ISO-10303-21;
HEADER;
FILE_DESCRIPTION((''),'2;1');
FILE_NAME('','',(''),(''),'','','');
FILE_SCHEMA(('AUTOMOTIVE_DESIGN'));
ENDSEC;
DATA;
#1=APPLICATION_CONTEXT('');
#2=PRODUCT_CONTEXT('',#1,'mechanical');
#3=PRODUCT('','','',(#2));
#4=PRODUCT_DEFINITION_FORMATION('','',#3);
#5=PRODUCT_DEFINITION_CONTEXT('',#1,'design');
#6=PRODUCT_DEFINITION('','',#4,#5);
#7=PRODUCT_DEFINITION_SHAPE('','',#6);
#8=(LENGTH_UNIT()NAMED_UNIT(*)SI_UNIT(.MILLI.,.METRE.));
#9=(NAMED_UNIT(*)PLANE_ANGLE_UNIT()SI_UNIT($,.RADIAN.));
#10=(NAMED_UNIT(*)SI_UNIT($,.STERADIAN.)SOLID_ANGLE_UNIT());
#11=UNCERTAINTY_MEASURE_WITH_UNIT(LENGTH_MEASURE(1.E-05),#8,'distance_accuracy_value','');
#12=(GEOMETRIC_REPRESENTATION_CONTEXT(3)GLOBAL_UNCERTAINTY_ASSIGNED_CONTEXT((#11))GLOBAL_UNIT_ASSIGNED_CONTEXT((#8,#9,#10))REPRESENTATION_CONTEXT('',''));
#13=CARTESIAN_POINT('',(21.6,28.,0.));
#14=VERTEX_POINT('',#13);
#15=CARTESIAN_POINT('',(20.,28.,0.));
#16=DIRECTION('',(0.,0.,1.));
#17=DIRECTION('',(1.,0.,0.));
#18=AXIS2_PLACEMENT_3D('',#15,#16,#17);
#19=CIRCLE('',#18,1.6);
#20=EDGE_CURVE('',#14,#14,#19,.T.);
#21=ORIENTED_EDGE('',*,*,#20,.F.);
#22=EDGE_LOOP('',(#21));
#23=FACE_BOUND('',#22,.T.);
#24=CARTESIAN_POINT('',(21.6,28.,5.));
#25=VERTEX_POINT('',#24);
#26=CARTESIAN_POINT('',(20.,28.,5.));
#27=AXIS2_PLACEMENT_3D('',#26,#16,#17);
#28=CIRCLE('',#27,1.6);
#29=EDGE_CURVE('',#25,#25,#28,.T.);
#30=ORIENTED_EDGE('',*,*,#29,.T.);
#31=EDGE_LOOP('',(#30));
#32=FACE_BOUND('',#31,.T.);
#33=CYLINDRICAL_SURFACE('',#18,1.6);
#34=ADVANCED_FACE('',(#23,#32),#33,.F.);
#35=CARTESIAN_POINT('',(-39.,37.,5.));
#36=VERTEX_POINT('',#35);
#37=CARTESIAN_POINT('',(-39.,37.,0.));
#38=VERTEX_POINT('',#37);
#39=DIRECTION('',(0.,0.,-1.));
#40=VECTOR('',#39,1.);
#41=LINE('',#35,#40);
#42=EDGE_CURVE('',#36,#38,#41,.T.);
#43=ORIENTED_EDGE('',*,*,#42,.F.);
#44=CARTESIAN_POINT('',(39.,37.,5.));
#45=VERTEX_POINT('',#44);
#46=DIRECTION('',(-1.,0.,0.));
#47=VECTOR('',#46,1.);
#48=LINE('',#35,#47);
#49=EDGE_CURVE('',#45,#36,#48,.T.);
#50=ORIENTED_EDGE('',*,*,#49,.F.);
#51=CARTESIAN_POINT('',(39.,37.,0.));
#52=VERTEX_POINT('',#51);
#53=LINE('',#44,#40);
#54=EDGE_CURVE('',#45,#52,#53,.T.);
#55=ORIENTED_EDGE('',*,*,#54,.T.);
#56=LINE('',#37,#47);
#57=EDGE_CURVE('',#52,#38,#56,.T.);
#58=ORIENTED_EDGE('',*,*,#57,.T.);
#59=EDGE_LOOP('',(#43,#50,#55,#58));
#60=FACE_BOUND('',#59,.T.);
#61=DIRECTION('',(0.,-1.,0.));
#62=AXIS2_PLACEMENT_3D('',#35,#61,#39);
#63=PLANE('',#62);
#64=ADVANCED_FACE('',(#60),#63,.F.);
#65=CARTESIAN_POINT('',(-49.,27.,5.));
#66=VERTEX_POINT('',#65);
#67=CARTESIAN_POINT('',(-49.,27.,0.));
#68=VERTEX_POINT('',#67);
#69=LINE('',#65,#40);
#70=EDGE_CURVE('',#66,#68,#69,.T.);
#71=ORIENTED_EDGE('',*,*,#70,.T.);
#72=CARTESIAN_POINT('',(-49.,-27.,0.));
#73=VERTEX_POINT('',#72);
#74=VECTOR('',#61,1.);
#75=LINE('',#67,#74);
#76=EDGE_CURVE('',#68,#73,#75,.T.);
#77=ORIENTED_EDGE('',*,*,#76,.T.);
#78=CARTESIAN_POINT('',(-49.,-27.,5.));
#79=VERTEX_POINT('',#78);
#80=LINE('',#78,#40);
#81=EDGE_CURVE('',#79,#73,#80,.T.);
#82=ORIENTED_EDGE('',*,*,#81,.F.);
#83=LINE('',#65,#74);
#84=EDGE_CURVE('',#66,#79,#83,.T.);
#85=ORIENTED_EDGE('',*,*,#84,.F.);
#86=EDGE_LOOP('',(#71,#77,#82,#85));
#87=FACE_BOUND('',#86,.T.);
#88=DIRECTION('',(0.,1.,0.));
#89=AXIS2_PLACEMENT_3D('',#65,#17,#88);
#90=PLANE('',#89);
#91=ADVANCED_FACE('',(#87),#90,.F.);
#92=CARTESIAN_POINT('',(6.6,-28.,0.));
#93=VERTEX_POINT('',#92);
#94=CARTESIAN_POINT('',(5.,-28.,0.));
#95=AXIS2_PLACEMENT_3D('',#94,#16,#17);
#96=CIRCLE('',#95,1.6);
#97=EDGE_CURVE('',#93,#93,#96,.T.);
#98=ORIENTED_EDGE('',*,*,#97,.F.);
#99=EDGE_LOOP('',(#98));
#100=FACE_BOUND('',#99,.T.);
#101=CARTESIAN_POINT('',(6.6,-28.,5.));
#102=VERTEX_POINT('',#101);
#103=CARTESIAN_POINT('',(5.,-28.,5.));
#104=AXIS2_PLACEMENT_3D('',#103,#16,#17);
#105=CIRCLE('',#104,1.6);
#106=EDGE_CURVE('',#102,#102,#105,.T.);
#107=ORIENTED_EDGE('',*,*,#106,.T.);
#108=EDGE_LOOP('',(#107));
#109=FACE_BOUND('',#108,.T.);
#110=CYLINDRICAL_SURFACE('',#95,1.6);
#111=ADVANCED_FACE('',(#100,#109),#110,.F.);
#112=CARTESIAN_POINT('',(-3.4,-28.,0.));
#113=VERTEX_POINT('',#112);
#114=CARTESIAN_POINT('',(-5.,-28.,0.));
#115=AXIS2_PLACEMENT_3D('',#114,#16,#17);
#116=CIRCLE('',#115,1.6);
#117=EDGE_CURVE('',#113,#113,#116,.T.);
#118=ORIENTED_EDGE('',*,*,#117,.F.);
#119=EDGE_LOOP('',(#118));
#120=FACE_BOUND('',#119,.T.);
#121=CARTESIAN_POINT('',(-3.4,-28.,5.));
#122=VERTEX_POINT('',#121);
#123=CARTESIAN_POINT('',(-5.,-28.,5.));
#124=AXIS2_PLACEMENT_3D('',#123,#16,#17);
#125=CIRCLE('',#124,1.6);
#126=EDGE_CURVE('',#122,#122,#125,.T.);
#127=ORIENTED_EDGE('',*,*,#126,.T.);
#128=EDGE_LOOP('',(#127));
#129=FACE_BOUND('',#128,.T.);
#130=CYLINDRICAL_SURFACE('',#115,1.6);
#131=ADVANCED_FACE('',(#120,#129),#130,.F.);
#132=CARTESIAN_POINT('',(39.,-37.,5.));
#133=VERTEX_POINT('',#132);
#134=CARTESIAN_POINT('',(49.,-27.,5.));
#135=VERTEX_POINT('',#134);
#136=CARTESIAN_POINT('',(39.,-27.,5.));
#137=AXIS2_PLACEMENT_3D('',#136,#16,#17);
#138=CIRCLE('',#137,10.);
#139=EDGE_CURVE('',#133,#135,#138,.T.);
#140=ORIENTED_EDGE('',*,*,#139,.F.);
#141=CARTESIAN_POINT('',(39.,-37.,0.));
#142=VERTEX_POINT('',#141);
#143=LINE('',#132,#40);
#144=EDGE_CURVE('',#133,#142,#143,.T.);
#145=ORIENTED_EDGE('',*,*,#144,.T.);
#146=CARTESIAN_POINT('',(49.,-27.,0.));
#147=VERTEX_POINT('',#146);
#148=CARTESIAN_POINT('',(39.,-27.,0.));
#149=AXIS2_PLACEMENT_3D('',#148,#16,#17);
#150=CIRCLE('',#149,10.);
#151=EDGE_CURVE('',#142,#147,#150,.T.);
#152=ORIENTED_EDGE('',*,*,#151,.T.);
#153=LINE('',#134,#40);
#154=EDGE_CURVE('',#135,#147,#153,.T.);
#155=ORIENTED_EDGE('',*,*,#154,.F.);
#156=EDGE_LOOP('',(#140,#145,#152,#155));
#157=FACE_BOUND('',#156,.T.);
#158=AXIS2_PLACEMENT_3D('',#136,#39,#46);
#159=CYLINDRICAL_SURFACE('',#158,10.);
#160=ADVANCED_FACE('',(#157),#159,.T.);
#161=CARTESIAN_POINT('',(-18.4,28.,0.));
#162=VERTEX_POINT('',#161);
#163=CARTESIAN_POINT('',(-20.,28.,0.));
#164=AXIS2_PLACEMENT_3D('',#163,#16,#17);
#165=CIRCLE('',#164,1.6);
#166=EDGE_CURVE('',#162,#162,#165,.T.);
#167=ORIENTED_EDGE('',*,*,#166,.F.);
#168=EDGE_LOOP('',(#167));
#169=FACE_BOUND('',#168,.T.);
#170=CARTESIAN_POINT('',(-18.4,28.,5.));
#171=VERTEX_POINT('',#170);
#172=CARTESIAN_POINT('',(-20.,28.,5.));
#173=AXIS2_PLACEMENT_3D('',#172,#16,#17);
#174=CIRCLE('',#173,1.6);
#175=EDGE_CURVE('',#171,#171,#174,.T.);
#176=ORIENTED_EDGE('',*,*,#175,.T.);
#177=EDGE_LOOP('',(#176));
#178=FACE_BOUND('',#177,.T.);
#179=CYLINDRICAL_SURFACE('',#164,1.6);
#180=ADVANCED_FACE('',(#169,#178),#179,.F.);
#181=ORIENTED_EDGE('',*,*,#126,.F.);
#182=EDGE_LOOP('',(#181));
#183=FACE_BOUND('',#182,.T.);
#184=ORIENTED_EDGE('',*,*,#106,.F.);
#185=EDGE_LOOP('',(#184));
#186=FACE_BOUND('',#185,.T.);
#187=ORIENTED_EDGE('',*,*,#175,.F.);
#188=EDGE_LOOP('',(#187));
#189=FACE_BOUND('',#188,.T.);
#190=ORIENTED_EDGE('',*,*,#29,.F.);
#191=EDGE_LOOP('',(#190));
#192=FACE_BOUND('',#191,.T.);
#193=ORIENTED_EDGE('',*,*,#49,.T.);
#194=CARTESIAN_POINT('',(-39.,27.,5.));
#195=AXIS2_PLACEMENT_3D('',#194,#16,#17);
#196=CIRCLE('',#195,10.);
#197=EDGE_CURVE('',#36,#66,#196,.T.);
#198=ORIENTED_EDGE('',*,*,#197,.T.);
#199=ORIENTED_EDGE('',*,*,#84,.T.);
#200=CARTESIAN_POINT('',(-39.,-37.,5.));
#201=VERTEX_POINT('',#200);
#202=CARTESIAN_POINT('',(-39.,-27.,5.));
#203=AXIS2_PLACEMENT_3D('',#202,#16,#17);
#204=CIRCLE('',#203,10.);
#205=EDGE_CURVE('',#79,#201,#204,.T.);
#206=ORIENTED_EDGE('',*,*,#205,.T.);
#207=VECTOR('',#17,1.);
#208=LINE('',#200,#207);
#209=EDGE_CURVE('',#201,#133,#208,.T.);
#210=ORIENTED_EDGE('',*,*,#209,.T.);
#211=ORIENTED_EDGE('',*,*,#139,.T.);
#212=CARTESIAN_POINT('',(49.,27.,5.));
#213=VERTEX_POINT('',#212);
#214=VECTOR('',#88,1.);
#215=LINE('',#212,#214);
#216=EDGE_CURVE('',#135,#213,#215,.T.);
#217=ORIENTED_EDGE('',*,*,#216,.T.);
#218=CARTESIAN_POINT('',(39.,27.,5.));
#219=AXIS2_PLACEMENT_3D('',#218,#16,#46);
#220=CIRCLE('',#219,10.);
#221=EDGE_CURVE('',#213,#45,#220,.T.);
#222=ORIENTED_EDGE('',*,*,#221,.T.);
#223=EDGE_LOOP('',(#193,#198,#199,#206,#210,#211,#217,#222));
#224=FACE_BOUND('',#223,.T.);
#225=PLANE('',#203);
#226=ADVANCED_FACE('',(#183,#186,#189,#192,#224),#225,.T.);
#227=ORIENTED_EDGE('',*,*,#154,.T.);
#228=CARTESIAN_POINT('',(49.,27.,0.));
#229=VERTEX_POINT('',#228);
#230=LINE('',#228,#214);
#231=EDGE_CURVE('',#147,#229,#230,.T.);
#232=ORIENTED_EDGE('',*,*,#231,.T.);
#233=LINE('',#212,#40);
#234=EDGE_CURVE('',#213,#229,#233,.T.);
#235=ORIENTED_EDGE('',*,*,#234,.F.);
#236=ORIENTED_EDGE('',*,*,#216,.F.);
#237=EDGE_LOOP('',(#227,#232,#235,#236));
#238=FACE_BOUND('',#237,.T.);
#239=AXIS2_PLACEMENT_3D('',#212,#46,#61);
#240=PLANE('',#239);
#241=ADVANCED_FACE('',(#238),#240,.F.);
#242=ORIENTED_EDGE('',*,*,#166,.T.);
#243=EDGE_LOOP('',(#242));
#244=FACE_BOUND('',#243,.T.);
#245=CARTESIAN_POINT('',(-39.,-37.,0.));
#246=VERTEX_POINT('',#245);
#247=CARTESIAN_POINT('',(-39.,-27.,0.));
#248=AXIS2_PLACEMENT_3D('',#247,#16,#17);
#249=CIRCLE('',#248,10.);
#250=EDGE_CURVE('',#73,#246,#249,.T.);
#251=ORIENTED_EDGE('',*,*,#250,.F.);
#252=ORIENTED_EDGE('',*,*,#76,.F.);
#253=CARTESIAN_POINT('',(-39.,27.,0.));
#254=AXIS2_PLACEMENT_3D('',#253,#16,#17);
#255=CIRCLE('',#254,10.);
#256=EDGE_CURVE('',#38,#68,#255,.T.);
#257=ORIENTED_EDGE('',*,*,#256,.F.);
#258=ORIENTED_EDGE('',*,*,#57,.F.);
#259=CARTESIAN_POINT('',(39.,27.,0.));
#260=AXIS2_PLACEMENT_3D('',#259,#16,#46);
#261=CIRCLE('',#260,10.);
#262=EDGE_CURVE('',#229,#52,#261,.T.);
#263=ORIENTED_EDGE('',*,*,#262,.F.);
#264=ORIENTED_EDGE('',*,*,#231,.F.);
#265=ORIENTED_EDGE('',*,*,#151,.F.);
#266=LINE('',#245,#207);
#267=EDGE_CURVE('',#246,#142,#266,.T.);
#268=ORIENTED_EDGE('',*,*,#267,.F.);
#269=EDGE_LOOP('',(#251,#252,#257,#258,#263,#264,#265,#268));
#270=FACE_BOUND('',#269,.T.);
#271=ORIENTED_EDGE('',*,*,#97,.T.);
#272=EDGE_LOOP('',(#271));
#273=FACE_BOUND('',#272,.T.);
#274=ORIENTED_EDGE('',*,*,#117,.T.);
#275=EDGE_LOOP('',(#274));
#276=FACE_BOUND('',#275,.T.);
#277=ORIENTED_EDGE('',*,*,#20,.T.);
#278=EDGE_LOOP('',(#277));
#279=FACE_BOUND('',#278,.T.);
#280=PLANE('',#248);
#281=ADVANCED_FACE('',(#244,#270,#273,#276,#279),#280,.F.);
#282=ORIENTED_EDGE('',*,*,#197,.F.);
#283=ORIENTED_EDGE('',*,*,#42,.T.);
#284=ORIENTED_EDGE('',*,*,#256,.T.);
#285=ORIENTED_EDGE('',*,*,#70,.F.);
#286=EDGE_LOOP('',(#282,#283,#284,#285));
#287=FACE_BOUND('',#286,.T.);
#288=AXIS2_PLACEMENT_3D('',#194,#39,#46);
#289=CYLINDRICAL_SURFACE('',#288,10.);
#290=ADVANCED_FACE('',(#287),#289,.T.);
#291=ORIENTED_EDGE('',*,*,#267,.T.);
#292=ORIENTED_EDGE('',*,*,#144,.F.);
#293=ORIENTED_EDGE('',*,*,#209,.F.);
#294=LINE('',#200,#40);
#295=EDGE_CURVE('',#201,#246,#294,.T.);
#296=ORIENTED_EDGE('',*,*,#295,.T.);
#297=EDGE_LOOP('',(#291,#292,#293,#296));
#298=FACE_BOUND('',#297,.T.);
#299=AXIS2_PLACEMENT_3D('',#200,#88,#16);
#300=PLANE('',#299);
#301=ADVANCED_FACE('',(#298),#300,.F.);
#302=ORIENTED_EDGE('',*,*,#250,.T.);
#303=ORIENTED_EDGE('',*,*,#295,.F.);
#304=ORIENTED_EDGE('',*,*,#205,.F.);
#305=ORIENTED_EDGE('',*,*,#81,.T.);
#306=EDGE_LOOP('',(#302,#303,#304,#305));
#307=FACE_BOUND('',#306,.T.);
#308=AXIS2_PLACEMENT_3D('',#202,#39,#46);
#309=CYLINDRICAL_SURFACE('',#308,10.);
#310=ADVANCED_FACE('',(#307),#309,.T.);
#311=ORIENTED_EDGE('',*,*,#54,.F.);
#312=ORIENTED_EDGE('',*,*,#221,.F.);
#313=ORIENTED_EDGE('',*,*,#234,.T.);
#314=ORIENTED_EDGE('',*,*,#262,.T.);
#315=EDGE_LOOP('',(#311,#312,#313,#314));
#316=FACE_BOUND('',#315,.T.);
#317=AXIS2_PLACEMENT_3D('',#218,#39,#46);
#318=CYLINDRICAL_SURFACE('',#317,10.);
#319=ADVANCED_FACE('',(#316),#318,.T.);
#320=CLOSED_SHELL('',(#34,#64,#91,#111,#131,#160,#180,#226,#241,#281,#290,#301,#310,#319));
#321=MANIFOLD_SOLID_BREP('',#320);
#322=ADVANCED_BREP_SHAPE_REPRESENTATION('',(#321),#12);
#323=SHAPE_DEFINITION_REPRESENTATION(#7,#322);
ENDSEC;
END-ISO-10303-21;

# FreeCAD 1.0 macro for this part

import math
import FreeCAD as App
import Part
import Sketcher

doc = App.newDocument("Part")
body = doc.addObject("PartDesign::Body", "Body")

# Sketch on XY plane
sketch1 = body.newObject("Sketcher::SketchObject", "Sketch")
sketch1.AttachmentSupport = (doc.getObject("XY_Plane"), [""])
sketch1.MapMode = "FlatFace"
sketch1.addGeometry(Part.LineSegment(App.Vector(39, 37, 0), App.Vector(-39, 37, 0)), False)
sketch1.addGeometry(Part.ArcOfCircle(Part.Circle(App.Vector(-39, 27, 0), App.Vector(0, 0, 1), 10), math.radians(90), math.radians(180)), False)
sketch1.addGeometry(Part.LineSegment(App.Vector(-49, 27, 0), App.Vector(-49, -27, 0)), False)
sketch1.addGeometry(Part.ArcOfCircle(Part.Circle(App.Vector(-39, -27, 0), App.Vector(0, 0, 1), 10), math.radians(180), math.radians(270)), False)
sketch1.addGeometry(Part.LineSegment(App.Vector(-39, -37, 0), App.Vector(39, -37, 0)), False)
sketch1.addGeometry(Part.ArcOfCircle(Part.Circle(App.Vector(39, -27, 0), App.Vector(0, 0, 1), 10), math.radians(-90), math.radians(0)), False)
sketch1.addGeometry(Part.LineSegment(App.Vector(49, -27, 0), App.Vector(49, 27, 0)), False)
sketch1.addGeometry(Part.ArcOfCircle(Part.Circle(App.Vector(39, 27, 0), App.Vector(0, 0, 1), 10), math.radians(0), math.radians(90)), False)
sketch1.addConstraint(Sketcher.Constraint("Tangent", 0, 2, 1, 1))
sketch1.addConstraint(Sketcher.Constraint("Tangent", 1, 2, 2, 1))
sketch1.addConstraint(Sketcher.Constraint("Tangent", 2, 2, 3, 1))
sketch1.addConstraint(Sketcher.Constraint("Tangent", 3, 2, 4, 1))
sketch1.addConstraint(Sketcher.Constraint("Tangent", 4, 2, 5, 1))
sketch1.addConstraint(Sketcher.Constraint("Tangent", 5, 2, 6, 1))
sketch1.addConstraint(Sketcher.Constraint("Tangent", 6, 2, 7, 1))
sketch1.addConstraint(Sketcher.Constraint("Tangent", 7, 2, 0, 1))
sketch1.addConstraint(Sketcher.Constraint("Horizontal", 0))
sketch1.addConstraint(Sketcher.Constraint("Vertical", 2))
sketch1.addConstraint(Sketcher.Constraint("Horizontal", 4))
sketch1.addConstraint(Sketcher.Constraint("Vertical", 6))
sketch1.addConstraint(Sketcher.Constraint("Equal", 1, 3))
sketch1.addConstraint(Sketcher.Constraint("Equal", 3, 5))
sketch1.addConstraint(Sketcher.Constraint("Equal", 5, 7))
sketch1.addConstraint(Sketcher.Constraint("Symmetric", 1, 3, 5, 3, -1, 1))
sketch1.addConstraint(Sketcher.Constraint("Radius", 1, 10.0))
sketch1.addConstraint(Sketcher.Constraint("DistanceX", 0, 2, 0, 1, 78.0))
sketch1.addConstraint(Sketcher.Constraint("DistanceY", 2, 2, 2, 1, 54.0))
pad1 = body.newObject("PartDesign::Pad", "Pad")
pad1.Profile = sketch1
pad1.Length = 5

# Sketch on XY plane
sketch2 = body.newObject("Sketcher::SketchObject", "Sketch001")
sketch2.AttachmentSupport = (doc.getObject("XY_Plane"), [""])
sketch2.MapMode = "FlatFace"
sketch2.AttachmentOffset = App.Placement(App.Vector(0, 0, 5), App.Rotation())
sketch2.addGeometry(Part.Circle(App.Vector(5, -28, 0), App.Vector(0, 0, 1), 1.6), False)
sketch2.addGeometry(Part.Circle(App.Vector(-5, -28, 0), App.Vector(0, 0, 1), 1.6), False)
sketch2.addGeometry(Part.Circle(App.Vector(-20, 28, 0), App.Vector(0, 0, 1), 1.6), False)
sketch2.addGeometry(Part.Circle(App.Vector(20, 28, 0), App.Vector(0, 0, 1), 1.6), False)
sketch2.addConstraint(Sketcher.Constraint("Equal", 0, 1))
sketch2.addConstraint(Sketcher.Constraint("Equal", 1, 2))
sketch2.addConstraint(Sketcher.Constraint("Equal", 2, 3))
sketch2.addConstraint(Sketcher.Constraint("Symmetric", 0, 3, 1, 3, -2))
sketch2.addConstraint(Sketcher.Constraint("Symmetric", 2, 3, 3, 3, -2))
sketch2.addConstraint(Sketcher.Constraint("Diameter", 0, 3.2))
sketch2.addConstraint(Sketcher.Constraint("DistanceX", -1, 1, 0, 3, 5.0))
sketch2.addConstraint(Sketcher.Constraint("DistanceY", 0, 3, -1, 1, 28.0))
sketch2.addConstraint(Sketcher.Constraint("DistanceX", 2, 3, -1, 1, 20.0))
sketch2.addConstraint(Sketcher.Constraint("DistanceY", -1, 1, 2, 3, 28.0))
pocket1 = body.newObject("PartDesign::Pocket", "Pocket")
pocket1.Profile = sketch2
pocket1.Length = 5

doc.recompute()
